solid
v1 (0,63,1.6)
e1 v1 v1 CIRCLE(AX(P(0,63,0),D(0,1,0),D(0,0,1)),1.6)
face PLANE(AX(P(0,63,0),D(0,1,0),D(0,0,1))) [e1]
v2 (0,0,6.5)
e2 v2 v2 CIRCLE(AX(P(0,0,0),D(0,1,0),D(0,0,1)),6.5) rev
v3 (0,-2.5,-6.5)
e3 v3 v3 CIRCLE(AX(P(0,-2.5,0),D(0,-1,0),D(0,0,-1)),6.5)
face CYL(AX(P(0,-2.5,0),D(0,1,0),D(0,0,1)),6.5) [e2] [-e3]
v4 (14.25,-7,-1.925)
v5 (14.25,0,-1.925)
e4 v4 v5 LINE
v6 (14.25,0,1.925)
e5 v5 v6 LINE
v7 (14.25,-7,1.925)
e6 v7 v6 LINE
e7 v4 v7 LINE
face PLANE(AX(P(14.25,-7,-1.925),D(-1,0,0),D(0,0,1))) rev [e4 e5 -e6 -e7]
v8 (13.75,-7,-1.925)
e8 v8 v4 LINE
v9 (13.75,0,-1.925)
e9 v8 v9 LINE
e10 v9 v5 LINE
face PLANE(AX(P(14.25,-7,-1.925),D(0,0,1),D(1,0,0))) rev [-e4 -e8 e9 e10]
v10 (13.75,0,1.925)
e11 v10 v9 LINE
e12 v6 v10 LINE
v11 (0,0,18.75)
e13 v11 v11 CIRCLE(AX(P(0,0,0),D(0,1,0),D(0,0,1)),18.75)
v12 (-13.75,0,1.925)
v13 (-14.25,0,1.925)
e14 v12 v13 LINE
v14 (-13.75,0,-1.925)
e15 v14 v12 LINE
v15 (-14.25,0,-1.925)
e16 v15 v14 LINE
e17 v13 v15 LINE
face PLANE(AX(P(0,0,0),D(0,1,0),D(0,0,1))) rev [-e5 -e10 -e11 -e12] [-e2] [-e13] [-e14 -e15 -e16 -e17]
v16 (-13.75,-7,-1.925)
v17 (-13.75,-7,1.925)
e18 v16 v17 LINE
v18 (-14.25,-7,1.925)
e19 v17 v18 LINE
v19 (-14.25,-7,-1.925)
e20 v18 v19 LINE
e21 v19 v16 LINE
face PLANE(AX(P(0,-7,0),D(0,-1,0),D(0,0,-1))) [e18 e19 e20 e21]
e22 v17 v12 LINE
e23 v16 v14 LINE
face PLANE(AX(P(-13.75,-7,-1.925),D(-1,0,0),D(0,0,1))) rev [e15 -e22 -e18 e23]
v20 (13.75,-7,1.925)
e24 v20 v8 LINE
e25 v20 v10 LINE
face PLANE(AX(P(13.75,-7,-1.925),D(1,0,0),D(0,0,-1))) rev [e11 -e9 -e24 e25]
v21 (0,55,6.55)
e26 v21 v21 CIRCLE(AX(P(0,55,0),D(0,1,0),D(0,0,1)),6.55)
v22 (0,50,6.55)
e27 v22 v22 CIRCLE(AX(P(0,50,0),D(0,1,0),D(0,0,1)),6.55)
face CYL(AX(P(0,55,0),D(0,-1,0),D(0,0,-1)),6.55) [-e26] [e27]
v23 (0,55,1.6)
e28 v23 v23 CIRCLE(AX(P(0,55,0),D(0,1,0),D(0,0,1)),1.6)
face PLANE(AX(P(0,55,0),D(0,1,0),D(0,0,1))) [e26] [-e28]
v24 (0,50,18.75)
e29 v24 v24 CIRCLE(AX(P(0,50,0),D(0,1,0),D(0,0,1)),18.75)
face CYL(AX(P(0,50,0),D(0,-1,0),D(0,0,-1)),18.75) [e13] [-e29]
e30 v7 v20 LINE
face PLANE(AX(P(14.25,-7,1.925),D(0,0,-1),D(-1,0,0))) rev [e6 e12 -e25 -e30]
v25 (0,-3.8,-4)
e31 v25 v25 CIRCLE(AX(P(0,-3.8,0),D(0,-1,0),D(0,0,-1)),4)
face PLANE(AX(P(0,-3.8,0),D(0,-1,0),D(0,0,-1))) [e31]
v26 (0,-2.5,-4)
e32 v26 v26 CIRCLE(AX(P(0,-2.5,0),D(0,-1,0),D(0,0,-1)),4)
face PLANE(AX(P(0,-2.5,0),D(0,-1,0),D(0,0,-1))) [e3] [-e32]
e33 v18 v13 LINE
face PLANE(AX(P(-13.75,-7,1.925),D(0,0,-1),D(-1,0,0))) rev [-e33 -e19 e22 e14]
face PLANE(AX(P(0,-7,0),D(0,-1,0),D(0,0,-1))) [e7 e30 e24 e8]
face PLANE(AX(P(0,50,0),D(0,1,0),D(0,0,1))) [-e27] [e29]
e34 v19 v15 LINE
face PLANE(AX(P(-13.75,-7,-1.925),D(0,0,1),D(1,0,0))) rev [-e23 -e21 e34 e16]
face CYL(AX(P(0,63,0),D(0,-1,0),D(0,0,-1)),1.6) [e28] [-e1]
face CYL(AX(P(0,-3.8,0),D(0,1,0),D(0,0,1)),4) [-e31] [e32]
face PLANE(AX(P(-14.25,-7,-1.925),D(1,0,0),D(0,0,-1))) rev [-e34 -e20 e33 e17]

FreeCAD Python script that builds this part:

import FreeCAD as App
import Part
import Sketcher

V = App.Vector
Q = App.Units.Quantity


def add_polygon(sketch, points):
    """Adds a closed chain of lines whose ends are joined by coincident constraints."""
    first, n = sketch.GeometryCount, len(points)
    for a, b in zip(points, points[1:] + points[:1]):
        sketch.addGeometry(Part.LineSegment(App.Vector(*a, 0), App.Vector(*b, 0)), False)
    for i in range(n):
        sketch.addConstraint(Sketcher.Constraint("Coincident", first + i, 2, first + (i + 1) % n, 1))

doc = App.newDocument("Part")
body = doc.addObject("PartDesign::Body", "Body")

sketch1 = body.newObject("Sketcher::SketchObject", "Sketch")
sketch1.AttachmentSupport = (doc.getObject("XZ_Plane"), [""])
sketch1.MapMode = "FlatFace"
sketch1.addGeometry(Part.Circle(V(0, 0, 0), V(0, 0, 1), 19), False)
sketch1.addConstraint([
    Sketcher.Constraint("Coincident", 0, 3, -1, 1),
    Sketcher.Constraint("Diameter", 0, Q("37.5 mm")),
])
pad1 = body.newObject("PartDesign::Pad", "Pad")
pad1.Profile = sketch1
pad1.Length = 50
pad1.Reversed = True

sketch2 = body.newObject("Sketcher::SketchObject", "Sketch001")
sketch2.AttachmentSupport = (doc.getObject("XZ_Plane"), [""])
sketch2.MapMode = "FlatFace"
sketch2.AttachmentOffset = App.Placement(V(0, 0, -50), App.Rotation())
sketch2.addGeometry(Part.Circle(V(0, 0, 0), V(0, 0, 1), 7), False)
sketch2.addConstraint([
    Sketcher.Constraint("Coincident", 0, 3, -1, 1),
    Sketcher.Constraint("Diameter", 0, Q("13.1 mm")),
])
pad2 = body.newObject("PartDesign::Pad", "Pad001")
pad2.Profile = sketch2
pad2.Length = 5
pad2.Reversed = True

sketch3 = body.newObject("Sketcher::SketchObject", "Sketch002")
sketch3.AttachmentSupport = (doc.getObject("XZ_Plane"), [""])
sketch3.MapMode = "FlatFace"
sketch3.AttachmentOffset = App.Placement(V(0, 0, -55), App.Rotation())
sketch3.addGeometry(Part.Circle(V(0, 0, 0), V(0, 0, 1), 1.6), False)
sketch3.addConstraint([
    Sketcher.Constraint("Coincident", 0, 3, -1, 1),
    Sketcher.Constraint("Diameter", 0, Q("3.2 mm")),
])
pad3 = body.newObject("PartDesign::Pad", "Pad002")
pad3.Profile = sketch3
pad3.Length = 8
pad3.Reversed = True

sketch4 = body.newObject("Sketcher::SketchObject", "Sketch003")
sketch4.AttachmentSupport = (doc.getObject("XZ_Plane"), [""])
sketch4.MapMode = "FlatFace"
sketch4.addGeometry(Part.Circle(V(0, 0, 0), V(0, 0, 1), 6), False)
sketch4.addConstraint([
    Sketcher.Constraint("Coincident", 0, 3, -1, 1),
    Sketcher.Constraint("Diameter", 0, Q("13 mm")),
])
pad4 = body.newObject("PartDesign::Pad", "Pad003")
pad4.Profile = sketch4
pad4.Length = 2.5

sketch5 = body.newObject("Sketcher::SketchObject", "Sketch004")
sketch5.AttachmentSupport = (doc.getObject("XZ_Plane"), [""])
sketch5.MapMode = "FlatFace"
sketch5.AttachmentOffset = App.Placement(V(0, 0, 2.5), App.Rotation())
sketch5.addGeometry(Part.Circle(V(0, 0, 0), V(0, 0, 1), 4), False)
sketch5.addConstraint([
    Sketcher.Constraint("Coincident", 0, 3, -1, 1),
    Sketcher.Constraint("Diameter", 0, Q("8 mm")),
])
pad5 = body.newObject("PartDesign::Pad", "Pad004")
pad5.Profile = sketch5
pad5.Length = 1.3

sketch6 = body.newObject("Sketcher::SketchObject", "Sketch005")
sketch6.AttachmentSupport = (doc.getObject("XZ_Plane"), [""])
sketch6.MapMode = "FlatFace"
add_polygon(sketch6, [(-14.2, 1.9), (-14.2, -1.9), (-13.8, -1.9), (-13.8, 1.9)])
add_polygon(sketch6, [(13.8, 1.9), (13.8, -1.9), (14.2, -1.9), (14.2, 1.9)])
sketch6.addConstraint([
    Sketcher.Constraint("Vertical", 0),
    Sketcher.Constraint("Horizontal", 1),
    Sketcher.Constraint("Vertical", 2),
    Sketcher.Constraint("Horizontal", 3),
    Sketcher.Constraint("Vertical", 4),
    Sketcher.Constraint("Horizontal", 5),
    Sketcher.Constraint("Vertical", 6),
    Sketcher.Constraint("Horizontal", 7),
    Sketcher.Constraint("Symmetric", 2, 2, 4, 2, -1, 1),
    Sketcher.Constraint("Symmetric", 0, 2, 6, 2, -1, 1),
    Sketcher.Constraint("Horizontal", 1, 2, 4, 2),
    Sketcher.Constraint("DistanceX", 1, 1, 1, 2, Q("0.5 mm")),
    Sketcher.Constraint("DistanceX", 0, 2, 4, 2, Q("28 mm")),
    Sketcher.Constraint("DistanceY", 0, 2, 0, 1, Q("3.85 mm")),
])
pad6 = body.newObject("PartDesign::Pad", "Pad005")
pad6.Profile = sketch6
pad6.Length = 7

doc.recompute()
